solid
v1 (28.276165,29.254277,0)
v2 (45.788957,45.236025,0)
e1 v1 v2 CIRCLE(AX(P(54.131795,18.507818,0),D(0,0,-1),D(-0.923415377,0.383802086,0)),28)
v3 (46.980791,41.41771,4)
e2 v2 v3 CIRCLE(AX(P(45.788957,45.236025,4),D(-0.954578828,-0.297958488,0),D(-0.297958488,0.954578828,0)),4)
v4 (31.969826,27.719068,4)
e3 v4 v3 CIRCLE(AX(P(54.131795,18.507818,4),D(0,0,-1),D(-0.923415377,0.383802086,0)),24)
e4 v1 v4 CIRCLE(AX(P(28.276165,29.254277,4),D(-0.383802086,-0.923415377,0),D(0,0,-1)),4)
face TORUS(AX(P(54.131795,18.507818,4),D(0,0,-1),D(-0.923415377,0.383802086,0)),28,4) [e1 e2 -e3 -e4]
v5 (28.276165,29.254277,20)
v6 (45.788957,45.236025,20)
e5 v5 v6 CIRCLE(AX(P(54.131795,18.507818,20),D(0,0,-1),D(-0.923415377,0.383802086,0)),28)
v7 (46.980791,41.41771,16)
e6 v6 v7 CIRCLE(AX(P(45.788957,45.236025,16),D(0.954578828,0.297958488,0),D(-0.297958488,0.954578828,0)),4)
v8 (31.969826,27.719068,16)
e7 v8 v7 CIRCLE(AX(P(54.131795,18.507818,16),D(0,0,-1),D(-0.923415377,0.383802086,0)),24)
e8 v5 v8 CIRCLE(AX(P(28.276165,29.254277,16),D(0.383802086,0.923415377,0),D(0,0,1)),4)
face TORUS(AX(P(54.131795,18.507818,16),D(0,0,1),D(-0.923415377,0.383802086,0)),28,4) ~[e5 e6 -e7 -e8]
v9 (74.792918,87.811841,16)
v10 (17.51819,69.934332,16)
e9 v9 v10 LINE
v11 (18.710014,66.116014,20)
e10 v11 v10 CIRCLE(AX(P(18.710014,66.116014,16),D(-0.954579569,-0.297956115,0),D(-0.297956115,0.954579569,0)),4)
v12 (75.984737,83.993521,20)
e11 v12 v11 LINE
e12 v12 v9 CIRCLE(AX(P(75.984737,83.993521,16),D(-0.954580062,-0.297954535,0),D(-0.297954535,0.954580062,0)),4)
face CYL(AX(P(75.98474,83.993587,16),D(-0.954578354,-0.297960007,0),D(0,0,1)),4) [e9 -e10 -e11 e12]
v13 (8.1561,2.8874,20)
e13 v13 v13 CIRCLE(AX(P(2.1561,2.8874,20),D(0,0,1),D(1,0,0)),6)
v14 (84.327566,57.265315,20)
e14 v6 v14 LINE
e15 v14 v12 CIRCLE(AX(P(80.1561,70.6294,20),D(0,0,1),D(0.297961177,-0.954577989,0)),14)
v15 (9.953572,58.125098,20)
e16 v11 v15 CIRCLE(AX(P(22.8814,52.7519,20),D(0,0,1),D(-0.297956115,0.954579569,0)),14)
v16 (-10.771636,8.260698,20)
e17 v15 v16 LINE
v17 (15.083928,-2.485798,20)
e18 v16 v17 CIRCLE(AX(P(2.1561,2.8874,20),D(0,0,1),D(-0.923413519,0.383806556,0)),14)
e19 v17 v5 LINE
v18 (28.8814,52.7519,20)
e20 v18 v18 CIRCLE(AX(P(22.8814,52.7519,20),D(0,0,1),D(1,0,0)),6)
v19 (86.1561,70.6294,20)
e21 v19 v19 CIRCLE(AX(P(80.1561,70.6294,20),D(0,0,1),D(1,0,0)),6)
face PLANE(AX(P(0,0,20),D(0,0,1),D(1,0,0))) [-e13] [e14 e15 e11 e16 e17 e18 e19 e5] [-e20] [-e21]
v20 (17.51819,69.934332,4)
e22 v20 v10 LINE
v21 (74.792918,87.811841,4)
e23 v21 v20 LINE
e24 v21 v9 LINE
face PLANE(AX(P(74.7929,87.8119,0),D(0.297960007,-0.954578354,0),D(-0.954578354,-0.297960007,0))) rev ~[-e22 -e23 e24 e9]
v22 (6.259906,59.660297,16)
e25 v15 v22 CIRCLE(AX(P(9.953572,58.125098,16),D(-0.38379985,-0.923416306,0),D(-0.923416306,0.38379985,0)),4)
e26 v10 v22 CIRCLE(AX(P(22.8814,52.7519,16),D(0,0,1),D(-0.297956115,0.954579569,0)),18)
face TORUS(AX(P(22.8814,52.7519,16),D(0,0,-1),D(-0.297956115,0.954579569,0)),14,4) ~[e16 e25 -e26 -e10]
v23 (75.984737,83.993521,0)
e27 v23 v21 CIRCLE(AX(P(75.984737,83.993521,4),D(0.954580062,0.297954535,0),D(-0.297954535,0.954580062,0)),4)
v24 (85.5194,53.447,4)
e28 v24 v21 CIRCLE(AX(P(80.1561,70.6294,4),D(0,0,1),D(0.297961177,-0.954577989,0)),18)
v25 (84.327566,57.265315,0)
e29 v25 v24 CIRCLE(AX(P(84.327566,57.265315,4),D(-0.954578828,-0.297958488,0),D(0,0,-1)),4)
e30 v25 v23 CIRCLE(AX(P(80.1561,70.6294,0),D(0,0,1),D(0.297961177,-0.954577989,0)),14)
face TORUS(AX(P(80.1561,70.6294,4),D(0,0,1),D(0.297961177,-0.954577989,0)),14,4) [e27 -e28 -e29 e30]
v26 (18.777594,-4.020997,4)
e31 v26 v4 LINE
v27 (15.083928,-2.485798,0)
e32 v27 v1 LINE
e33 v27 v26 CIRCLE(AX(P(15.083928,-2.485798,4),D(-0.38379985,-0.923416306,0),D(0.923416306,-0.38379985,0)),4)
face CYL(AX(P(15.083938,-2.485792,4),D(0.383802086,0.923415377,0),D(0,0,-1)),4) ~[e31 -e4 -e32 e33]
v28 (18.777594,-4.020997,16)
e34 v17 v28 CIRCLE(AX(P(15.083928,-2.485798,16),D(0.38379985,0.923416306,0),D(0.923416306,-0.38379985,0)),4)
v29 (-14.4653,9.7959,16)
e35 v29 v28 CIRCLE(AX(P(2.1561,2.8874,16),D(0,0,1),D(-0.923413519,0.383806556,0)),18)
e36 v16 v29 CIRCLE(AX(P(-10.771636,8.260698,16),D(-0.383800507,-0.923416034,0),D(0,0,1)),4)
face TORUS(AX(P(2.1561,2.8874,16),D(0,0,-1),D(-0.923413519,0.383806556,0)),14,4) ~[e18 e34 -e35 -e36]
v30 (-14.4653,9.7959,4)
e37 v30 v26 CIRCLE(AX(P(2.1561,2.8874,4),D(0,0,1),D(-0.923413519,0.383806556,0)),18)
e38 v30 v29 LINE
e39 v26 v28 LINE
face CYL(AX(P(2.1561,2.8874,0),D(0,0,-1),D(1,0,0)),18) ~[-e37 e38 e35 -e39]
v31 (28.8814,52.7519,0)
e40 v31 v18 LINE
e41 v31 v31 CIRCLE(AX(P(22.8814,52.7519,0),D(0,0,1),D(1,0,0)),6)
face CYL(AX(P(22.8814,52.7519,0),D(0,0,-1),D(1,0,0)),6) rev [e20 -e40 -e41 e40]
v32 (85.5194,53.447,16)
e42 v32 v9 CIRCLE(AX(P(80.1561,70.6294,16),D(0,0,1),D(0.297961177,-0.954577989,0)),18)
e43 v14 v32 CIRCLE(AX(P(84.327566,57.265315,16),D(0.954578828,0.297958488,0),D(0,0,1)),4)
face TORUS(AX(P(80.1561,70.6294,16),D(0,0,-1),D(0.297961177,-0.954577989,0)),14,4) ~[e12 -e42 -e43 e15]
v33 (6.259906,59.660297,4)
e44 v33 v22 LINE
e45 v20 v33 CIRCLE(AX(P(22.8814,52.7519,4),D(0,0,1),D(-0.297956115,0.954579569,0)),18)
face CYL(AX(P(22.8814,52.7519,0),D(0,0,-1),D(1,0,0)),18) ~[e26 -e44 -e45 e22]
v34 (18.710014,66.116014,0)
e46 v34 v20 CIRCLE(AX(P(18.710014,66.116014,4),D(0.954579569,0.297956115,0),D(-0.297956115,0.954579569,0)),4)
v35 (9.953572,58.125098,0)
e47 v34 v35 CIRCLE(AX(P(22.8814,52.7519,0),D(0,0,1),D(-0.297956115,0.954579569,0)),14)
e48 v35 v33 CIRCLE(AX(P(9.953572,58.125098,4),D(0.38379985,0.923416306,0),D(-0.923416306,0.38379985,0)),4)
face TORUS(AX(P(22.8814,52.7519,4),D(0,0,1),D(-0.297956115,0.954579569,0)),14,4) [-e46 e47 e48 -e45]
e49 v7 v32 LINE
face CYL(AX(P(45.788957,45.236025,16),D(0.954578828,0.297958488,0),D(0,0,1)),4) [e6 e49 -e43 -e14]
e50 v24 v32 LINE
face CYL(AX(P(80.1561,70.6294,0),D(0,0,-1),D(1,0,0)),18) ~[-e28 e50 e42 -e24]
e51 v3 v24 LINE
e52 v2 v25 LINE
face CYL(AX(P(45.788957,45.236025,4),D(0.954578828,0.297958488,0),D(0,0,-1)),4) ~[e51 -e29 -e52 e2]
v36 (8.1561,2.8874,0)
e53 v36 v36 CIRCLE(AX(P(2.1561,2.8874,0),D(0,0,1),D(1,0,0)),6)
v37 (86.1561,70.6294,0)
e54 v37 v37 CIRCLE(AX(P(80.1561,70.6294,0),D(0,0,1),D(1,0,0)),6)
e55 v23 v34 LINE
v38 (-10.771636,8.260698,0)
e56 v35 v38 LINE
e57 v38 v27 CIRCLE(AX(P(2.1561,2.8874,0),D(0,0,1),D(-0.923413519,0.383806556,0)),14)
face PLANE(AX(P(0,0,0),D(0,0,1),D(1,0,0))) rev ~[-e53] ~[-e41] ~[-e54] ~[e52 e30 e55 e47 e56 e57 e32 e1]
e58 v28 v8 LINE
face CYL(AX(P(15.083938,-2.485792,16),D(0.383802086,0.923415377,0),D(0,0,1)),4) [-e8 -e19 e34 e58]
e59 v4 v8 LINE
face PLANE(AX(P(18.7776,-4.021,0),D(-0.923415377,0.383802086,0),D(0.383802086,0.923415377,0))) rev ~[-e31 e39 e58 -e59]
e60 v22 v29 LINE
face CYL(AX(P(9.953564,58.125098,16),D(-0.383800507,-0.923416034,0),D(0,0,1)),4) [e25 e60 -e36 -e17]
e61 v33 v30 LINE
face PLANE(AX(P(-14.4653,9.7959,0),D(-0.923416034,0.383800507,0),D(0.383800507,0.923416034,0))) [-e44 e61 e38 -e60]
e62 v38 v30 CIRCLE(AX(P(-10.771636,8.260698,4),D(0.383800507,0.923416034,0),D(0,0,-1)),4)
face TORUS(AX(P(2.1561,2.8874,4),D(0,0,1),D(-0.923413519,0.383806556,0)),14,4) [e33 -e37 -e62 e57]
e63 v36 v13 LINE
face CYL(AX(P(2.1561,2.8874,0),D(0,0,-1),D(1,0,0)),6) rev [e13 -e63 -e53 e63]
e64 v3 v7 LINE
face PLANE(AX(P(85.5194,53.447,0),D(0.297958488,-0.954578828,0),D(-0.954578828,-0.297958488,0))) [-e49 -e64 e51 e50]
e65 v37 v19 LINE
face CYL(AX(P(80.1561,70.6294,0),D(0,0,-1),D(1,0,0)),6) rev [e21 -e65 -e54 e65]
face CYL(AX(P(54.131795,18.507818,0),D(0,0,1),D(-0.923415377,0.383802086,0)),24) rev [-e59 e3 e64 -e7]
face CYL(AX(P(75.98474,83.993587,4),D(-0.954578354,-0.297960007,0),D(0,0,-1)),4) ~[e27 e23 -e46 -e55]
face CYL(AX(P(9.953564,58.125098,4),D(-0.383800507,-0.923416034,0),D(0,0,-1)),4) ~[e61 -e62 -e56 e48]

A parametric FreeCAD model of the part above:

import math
import FreeCAD as App
import Part
import Sketcher
Q = App.Units.Quantity


def edges_at(feature, points):
    """Names of the edges that pass closest to the given points."""
    edges = feature.Shape.Edges
    near = lambda p: min(range(len(edges)), key=lambda i: edges[i].distToShape(Part.Vertex(*p))[0])
    return sorted({f"Edge{near(p) + 1}" for p in points})

doc = App.newDocument("Part")
body = doc.addObject("PartDesign::Body", "Body")

# Sketch on XY plane
sketch1 = body.newObject("Sketcher::SketchObject", "Sketch")
sketch1.AttachmentSupport = (doc.getObject("XY_Plane"), [""])
sketch1.MapMode = "FlatFace"
sketch1.addGeometry([
    Part.ArcOfCircle(Part.Circle(App.Vector(2.1561, 2.8874, 0), App.Vector(0, 0, 1), 18), math.radians(157.43033), math.radians(337.430746)),  # 0
    Part.LineSegment(App.Vector(18.7776, -4.021, 0), App.Vector(36.27446, 38.075878, 0)),  # 1
    Part.LineSegment(App.Vector(36.27446, 38.075878, 0), App.Vector(85.5194, 53.447, 0)),  # 2
    Part.ArcOfCircle(Part.Circle(App.Vector(80.1561, 70.6294, 0), App.Vector(0, 0, 1), 18), math.radians(-72.664812), math.radians(107.334789)),  # 3
    Part.LineSegment(App.Vector(74.7929, 87.8119, 0), App.Vector(17.5182, 69.9343, 0)),  # 4
    Part.ArcOfCircle(Part.Circle(App.Vector(22.8814, 52.7519, 0), App.Vector(0, 0, 1), 18), math.radians(107.334884), math.radians(157.430746)),  # 5
    Part.LineSegment(App.Vector(6.2599, 59.6603, 0), App.Vector(-14.4653, 9.7959, 0)),  # 6
    Part.Circle(App.Vector(2.1561, 2.8874, 0), App.Vector(0, 0, 1), 6),  # 7
    Part.Circle(App.Vector(22.8814, 52.7519, 0), App.Vector(0, 0, 1), 6),  # 8
    Part.Circle(App.Vector(80.1561, 70.6294, 0), App.Vector(0, 0, 1), 6),  # 9
], False)
sketch1.addConstraint([
    Sketcher.Constraint("Tangent", 0, 2, 1, 1),
    Sketcher.Constraint("Coincident", 1, 2, 2, 1),
    Sketcher.Constraint("Tangent", 2, 2, 3, 1),
    Sketcher.Constraint("Tangent", 3, 2, 4, 1),
    Sketcher.Constraint("Tangent", 4, 2, 5, 1),
    Sketcher.Constraint("Tangent", 5, 2, 6, 1),
    Sketcher.Constraint("Tangent", 6, 2, 0, 1),
    Sketcher.Constraint("Coincident", 7, 3, 0, 3),
    Sketcher.Constraint("Coincident", 8, 3, 5, 3),
    Sketcher.Constraint("Coincident", 9, 3, 3, 3),
    Sketcher.Constraint("Equal", 0, 3),
    Sketcher.Constraint("Equal", 3, 5),
    Sketcher.Constraint("Equal", 7, 8),
    Sketcher.Constraint("Equal", 8, 9),
    Sketcher.Constraint("Parallel", 2, 4),
    Sketcher.Constraint("Parallel", 1, 6),
    Sketcher.Constraint("Diameter", 7, Q("12 mm")),
    Sketcher.Constraint("Radius", 0, Q("18 mm")),
    Sketcher.Constraint("Distance", 4, Q("60 mm")),
    Sketcher.Constraint("Distance", 6, Q("54 mm")),
    Sketcher.Constraint("DistanceX", 0, 3, 3, 3, Q("78 mm")),
    Sketcher.Constraint("Angle", 1, Q("67.4306 deg")),
    Sketcher.Constraint("DistanceX", -1, 1, 5, 2, Q("6.26 mm")),
    Sketcher.Constraint("DistanceY", -1, 1, 5, 3, Q("52.752 mm")),
])
pad1 = body.newObject("PartDesign::Pad", "Pad")
pad1.Profile = sketch1
pad1.Length = 20
doc.recompute()

fillet = body.newObject("PartDesign::Fillet", "Fillet")
fillet.Base = (pad1, edges_at(pad1, [(36.274, 38.076, 10)]))
fillet.Radius = 24
doc.recompute()

fillet2 = body.newObject("PartDesign::Fillet", "Fillet001")
fillet2.Base = (fillet, edges_at(fillet, [
    (10.748, 66.048, 20),
    (-4.103, 34.728, 20),
    (-4.752, -13.734, 20),
    (25.374, 11.849, 20),
    (97.339, 75.993, 20),
    (66.25, 47.432, 20),
    (46.156, 78.873, 20),
    (10.748, 66.048, 0),
    (-4.103, 34.728, 0),
    (-4.752, -13.734, 0),
    (25.374, 11.849, 0),
    (97.339, 75.993, 0),
    (66.25, 47.432, 0),
    (46.156, 78.873, 0),
]))
fillet2.Radius = 4

doc.recompute()
